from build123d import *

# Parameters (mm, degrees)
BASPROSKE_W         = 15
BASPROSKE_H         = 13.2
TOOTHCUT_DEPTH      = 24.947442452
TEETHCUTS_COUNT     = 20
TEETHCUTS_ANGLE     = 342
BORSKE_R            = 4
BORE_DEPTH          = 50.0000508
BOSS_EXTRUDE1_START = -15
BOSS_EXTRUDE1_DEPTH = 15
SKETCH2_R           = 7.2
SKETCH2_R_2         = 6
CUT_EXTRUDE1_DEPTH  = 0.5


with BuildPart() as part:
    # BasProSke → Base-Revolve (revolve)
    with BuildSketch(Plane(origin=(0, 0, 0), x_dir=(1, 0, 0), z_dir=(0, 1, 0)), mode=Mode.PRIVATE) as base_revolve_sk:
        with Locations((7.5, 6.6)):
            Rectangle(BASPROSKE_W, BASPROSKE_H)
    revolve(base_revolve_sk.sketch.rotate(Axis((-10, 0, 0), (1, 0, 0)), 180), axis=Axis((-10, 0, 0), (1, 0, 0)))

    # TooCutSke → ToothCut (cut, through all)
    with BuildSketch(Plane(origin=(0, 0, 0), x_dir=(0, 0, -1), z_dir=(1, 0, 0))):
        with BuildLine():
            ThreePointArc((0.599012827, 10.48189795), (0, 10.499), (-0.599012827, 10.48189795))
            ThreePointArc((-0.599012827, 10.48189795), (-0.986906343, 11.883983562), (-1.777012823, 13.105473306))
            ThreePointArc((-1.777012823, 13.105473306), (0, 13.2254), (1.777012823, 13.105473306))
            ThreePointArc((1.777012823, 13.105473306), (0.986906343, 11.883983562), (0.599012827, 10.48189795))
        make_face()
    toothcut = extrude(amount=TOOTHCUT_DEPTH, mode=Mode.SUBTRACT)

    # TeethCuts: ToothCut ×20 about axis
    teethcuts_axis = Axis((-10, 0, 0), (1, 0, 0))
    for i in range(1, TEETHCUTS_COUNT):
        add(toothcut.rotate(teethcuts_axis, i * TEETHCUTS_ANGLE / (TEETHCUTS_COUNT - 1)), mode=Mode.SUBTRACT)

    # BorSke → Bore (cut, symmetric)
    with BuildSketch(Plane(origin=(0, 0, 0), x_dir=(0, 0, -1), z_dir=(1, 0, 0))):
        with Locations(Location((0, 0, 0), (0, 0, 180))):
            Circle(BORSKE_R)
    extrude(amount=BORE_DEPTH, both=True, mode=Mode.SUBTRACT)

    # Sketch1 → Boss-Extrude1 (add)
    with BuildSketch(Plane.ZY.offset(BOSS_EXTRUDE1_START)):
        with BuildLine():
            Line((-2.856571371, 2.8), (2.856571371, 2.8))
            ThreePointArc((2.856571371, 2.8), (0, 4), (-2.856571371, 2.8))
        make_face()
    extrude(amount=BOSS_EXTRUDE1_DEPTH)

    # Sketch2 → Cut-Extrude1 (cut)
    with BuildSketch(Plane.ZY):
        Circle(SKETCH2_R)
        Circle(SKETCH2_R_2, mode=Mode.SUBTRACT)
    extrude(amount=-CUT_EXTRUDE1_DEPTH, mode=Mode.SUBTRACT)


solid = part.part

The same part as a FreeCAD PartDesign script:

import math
import FreeCAD as App
import Part
import Sketcher
from FreeCAD import Vector


def add_polygon(sketch, points):
    """Adds a closed chain of lines whose ends are joined by coincident constraints."""
    first, n = sketch.GeometryCount, len(points)
    for a, b in zip(points, points[1:] + points[:1]):
        sketch.addGeometry(Part.LineSegment(App.Vector(*a, 0), App.Vector(*b, 0)), False)
    for i in range(n):
        sketch.addConstraint(Sketcher.Constraint("Coincident", first + i, 2, first + (i + 1) % n, 1))

doc = App.newDocument("Part")
body = doc.addObject("PartDesign::Body", "Body")

# Sketch on XZ plane
sketch1 = body.newObject("Sketcher::SketchObject", "Sketch")
sketch1.AttachmentSupport = (doc.getObject("XZ_Plane"), [""])
sketch1.MapMode = "FlatFace"
add_polygon(sketch1, [(0, -13), (0, 0), (15, 0), (15, -13)])  # lines 0-3
sketch1.addConstraint([
    Sketcher.Constraint("Vertical", 0),
    Sketcher.Constraint("Horizontal", 1),
    Sketcher.Constraint("Vertical", 2),
    Sketcher.Constraint("Horizontal", 3),
    Sketcher.Constraint("Coincident", 0, 2, -1, 1),
    Sketcher.Constraint("DistanceX", 1, 1, 1, 2, 15.0),
    Sketcher.Constraint("DistanceY", 0, 1, 0, 2, 13.2),
])
revolution = body.newObject("PartDesign::Revolution", "Revolution")
revolution.Profile = sketch1
revolution.ReferenceAxis = (sketch1, ["H_Axis"])
revolution.Angle = 360

# Sketch on YZ plane
sketch2 = body.newObject("Sketcher::SketchObject", "Sketch001")
sketch2.AttachmentSupport = (doc.getObject("YZ_Plane"), [""])
sketch2.MapMode = "FlatFace"
sketch2.addGeometry([
    Part.ArcOfCircle(Part.Circle(Vector(0, 0, 0), Vector(0, 0, 1), 10.5), math.radians(-3.27), math.radians(3.27)),
    Part.ArcOfCircle(Part.Circle(Vector(9.9, -5.4, 0), Vector(0, 0, 1), 4.8), math.radians(48), math.radians(83)),
    Part.ArcOfCircle(Part.Circle(Vector(0, 0, 0), Vector(0, 0, 1), 13.2), math.radians(-7.72), math.radians(7.72)),
    Part.ArcOfCircle(Part.Circle(Vector(9.9, 5.4, 0), Vector(0, 0, 1), 4.8), math.radians(-83), math.radians(-48)),
], False)
sketch2.addConstraint([
    Sketcher.Constraint("Coincident", 0, 1, 1, 2),
    Sketcher.Constraint("Coincident", 1, 1, 2, 1),
    Sketcher.Constraint("Coincident", 2, 2, 3, 2),
    Sketcher.Constraint("Coincident", 3, 1, 0, 2),
    Sketcher.Constraint("Coincident", 0, 3, -1, 1),
    Sketcher.Constraint("Coincident", 2, 3, -1, 1),
    Sketcher.Constraint("Equal", 1, 3),
    Sketcher.Constraint("Symmetric", 1, 3, 3, 3, -1),
    Sketcher.Constraint("Radius", 1, 4.8),
    Sketcher.Constraint("Radius", 0, 10.499),
    Sketcher.Constraint("Radius", 2, 13.2254),
    Sketcher.Constraint("DistanceY", 1, 1, 0, 1, 1.178),
    Sketcher.Constraint("DistanceY", 0, 1, 3, 3, 5.96477),
])
pocket1 = body.newObject("PartDesign::Pocket", "Pocket")
pocket1.Profile = sketch2
pocket1.Type = "ThroughAll"
pocket1.Reversed = True
doc.recompute()

polarpattern = body.newObject("PartDesign::PolarPattern", "PolarPattern")
polarpattern.Originals = [pocket1]
polarpattern.Axis = (doc.getObject("X_Axis"), [""])
polarpattern.Angle = 360
polarpattern.Occurrences = 20
body.Tip = polarpattern

# Sketch on YZ plane
sketch3 = body.newObject("Sketcher::SketchObject", "Sketch002")
sketch3.AttachmentSupport = (doc.getObject("YZ_Plane"), [""])
sketch3.MapMode = "FlatFace"
sketch3.addGeometry(Part.Circle(Vector(0, 0, 0), Vector(0, 0, 1), 4), False)
sketch3.addConstraint([
    Sketcher.Constraint("Coincident", 0, 3, -1, 1),
    Sketcher.Constraint("Diameter", 0, 8.0),
])
pocket2 = body.newObject("PartDesign::Pocket", "Pocket001")
pocket2.Profile = sketch3
pocket2.Length = 100.000102
pocket2.Midplane = True

# Sketch on YZ plane
sketch4 = body.newObject("Sketcher::SketchObject", "Sketch003")
sketch4.AttachmentSupport = (doc.getObject("YZ_Plane"), [""])
sketch4.MapMode = "FlatFace"
sketch4.AttachmentOffset = App.Placement(Vector(0, 0, 15), App.Rotation())
sketch4.addGeometry([
    Part.LineSegment(Vector(2.8, -2.9, 0), Vector(2.8, 2.9, 0)),
    Part.ArcOfCircle(Part.Circle(Vector(0, 0, 0), Vector(0, 0, 1), 4), math.radians(-46), math.radians(46)),
], False)
sketch4.addConstraint([
    Sketcher.Constraint("Coincident", 0, 1, 1, 1),
    Sketcher.Constraint("Coincident", 1, 2, 0, 2),
    Sketcher.Constraint("Vertical", 0),
    Sketcher.Constraint("Coincident", 1, 3, -1, 1),
    Sketcher.Constraint("Radius", 1, 4.0),
    Sketcher.Constraint("DistanceX", -1, 1, 0, 1, 2.8),
])
pad1 = body.newObject("PartDesign::Pad", "Pad")
pad1.Profile = sketch4
pad1.Length = 15
pad1.Reversed = True

# Sketch on YZ plane
sketch5 = body.newObject("Sketcher::SketchObject", "Sketch004")
sketch5.AttachmentSupport = (doc.getObject("YZ_Plane"), [""])
sketch5.MapMode = "FlatFace"
sketch5.addGeometry([
    Part.Circle(Vector(0, 0, 0), Vector(0, 0, 1), 7),
    Part.Circle(Vector(0, 0, 0), Vector(0, 0, 1), 6),
], False)
sketch5.addConstraint([
    Sketcher.Constraint("Coincident", 0, 3, -1, 1),
    Sketcher.Constraint("Coincident", 1, 3, -1, 1),
    Sketcher.Constraint("Diameter", 1, 12.0),
    Sketcher.Constraint("Diameter", 0, 14.4),
])
pocket3 = body.newObject("PartDesign::Pocket", "Pocket002")
pocket3.Profile = sketch5
pocket3.Length = 0.5
pocket3.Reversed = True

doc.recompute()
